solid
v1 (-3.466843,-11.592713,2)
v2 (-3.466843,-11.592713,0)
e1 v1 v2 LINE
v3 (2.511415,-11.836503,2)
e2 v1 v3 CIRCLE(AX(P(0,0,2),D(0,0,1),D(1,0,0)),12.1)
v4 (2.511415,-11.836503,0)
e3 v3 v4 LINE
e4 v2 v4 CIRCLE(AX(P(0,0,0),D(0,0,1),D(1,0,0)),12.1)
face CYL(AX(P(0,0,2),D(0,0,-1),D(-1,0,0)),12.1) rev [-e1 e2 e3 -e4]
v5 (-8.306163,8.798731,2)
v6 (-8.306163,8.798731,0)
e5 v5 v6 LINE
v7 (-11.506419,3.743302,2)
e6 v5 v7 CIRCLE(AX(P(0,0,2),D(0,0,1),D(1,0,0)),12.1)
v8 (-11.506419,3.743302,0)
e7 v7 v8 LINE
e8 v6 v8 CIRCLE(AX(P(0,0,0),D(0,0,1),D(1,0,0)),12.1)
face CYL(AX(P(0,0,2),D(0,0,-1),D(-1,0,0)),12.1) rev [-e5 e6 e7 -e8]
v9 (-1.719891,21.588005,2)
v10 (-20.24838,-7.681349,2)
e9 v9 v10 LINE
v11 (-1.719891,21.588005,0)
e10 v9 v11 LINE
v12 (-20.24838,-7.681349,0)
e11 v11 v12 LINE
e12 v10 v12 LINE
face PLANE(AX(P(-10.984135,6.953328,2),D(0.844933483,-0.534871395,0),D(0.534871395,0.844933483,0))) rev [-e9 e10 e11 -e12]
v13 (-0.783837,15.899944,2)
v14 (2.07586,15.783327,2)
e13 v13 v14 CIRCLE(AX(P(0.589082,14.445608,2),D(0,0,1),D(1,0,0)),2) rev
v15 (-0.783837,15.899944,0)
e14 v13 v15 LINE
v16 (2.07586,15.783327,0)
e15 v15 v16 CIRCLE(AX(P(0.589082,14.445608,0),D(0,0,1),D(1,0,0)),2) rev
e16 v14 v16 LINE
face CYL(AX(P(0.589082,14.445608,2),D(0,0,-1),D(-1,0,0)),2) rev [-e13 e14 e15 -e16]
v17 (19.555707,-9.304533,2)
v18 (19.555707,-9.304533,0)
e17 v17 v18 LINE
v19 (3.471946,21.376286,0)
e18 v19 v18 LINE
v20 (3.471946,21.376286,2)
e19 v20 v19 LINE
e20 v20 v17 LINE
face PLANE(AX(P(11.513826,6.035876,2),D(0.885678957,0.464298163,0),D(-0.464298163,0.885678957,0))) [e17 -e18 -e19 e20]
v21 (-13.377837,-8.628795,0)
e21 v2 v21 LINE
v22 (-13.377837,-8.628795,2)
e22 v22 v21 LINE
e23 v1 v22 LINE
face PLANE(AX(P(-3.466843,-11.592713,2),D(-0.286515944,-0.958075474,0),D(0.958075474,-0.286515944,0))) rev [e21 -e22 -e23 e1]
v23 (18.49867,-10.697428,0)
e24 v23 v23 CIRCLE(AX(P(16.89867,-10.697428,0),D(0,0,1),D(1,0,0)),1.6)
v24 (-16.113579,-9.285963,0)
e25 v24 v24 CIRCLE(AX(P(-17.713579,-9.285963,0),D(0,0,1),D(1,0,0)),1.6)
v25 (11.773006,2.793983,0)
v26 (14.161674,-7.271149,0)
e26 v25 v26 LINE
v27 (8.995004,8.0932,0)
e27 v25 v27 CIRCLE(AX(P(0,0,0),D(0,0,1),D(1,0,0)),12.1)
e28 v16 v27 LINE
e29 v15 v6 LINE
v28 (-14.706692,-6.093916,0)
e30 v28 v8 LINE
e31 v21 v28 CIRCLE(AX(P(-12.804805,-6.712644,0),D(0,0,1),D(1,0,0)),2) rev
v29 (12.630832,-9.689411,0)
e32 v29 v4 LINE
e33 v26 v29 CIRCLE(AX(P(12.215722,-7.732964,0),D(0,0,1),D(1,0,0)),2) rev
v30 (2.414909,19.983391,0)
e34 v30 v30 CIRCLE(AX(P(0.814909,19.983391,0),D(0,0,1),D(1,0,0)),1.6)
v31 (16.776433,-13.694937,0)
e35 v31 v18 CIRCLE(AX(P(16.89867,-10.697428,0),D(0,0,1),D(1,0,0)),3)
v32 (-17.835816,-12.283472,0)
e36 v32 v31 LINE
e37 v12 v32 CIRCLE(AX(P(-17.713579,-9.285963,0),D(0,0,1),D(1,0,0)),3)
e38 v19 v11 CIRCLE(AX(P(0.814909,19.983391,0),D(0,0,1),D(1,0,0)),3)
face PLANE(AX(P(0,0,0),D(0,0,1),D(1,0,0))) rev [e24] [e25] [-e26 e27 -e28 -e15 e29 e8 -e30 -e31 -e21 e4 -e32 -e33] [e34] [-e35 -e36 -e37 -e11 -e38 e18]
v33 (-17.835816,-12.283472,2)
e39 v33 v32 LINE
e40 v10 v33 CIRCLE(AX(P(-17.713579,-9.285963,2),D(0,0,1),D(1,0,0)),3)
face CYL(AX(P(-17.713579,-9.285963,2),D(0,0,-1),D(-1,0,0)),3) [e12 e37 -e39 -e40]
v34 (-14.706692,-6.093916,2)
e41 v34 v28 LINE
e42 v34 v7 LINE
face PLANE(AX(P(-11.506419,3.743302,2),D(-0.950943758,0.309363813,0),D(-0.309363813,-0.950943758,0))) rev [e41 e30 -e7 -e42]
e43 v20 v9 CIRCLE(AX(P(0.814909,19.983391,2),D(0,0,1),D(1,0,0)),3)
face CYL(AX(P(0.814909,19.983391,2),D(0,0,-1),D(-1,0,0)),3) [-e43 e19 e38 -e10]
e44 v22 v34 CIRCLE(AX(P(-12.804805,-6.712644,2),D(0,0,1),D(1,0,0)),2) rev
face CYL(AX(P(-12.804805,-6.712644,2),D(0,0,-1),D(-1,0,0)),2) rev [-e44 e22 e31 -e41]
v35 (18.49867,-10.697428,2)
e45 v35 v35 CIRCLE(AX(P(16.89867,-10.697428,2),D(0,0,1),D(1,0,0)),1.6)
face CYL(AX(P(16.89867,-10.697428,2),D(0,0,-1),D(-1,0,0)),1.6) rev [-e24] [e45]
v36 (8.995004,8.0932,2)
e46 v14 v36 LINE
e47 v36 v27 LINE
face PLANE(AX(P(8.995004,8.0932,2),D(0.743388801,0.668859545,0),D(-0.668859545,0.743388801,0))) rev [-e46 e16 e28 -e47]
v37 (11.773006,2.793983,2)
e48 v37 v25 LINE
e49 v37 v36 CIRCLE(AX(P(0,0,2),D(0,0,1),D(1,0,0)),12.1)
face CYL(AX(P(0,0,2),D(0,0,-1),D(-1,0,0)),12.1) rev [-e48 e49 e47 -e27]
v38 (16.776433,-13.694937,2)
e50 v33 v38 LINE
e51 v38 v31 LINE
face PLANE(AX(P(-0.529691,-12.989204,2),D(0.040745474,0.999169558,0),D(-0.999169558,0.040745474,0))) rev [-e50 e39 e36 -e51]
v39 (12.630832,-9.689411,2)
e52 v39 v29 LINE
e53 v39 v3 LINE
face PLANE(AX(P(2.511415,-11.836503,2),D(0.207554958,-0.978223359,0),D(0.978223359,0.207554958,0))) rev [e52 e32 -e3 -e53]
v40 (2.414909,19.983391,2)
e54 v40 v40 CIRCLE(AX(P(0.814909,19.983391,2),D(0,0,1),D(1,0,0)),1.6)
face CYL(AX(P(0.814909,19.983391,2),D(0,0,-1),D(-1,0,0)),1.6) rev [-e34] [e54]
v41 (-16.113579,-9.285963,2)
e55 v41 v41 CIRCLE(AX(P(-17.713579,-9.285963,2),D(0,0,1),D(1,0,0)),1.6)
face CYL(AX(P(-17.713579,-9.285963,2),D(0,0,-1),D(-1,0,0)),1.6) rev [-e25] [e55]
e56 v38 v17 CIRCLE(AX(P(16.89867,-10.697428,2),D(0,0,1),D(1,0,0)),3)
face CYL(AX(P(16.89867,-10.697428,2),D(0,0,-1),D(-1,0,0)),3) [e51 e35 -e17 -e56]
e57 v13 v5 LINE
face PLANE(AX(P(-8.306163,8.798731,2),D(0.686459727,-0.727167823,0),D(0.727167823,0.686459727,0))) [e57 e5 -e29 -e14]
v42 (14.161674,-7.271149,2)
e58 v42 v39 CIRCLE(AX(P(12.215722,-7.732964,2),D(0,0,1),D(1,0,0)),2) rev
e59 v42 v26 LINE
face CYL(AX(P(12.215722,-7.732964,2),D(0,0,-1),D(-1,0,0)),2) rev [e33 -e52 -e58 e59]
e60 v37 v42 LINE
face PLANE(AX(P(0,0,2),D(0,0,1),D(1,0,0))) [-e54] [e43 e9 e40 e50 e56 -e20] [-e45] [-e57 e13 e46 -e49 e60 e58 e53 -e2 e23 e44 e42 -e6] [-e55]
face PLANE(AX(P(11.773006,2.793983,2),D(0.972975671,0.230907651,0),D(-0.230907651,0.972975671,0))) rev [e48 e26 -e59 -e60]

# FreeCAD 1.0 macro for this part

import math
import FreeCAD as App
import Part
import Sketcher
Q = App.Units.Quantity

doc = App.newDocument("Part")
body = doc.addObject("PartDesign::Body", "Body")

# Sketch on XY plane
sketch1 = doc.addObject("Sketcher::SketchObject", "Sketch")
body.addObject(sketch1)
sketch1.AttachmentSupport = (doc.XY_Plane, [""])
sketch1.MapMode = "FlatFace"
sketch1.addGeometry([
    Part.LineSegment(App.Vector(-1.719891, 21.588005, 0), App.Vector(-20.24838, -7.681349, 0)),  # 0
    Part.ArcOfCircle(Part.Circle(App.Vector(-17.713579, -9.285963, 0), App.Vector(0, 0, 1), 3), math.radians(147.66481), math.radians(267.66481)),  # 1
    Part.LineSegment(App.Vector(-17.835816, -12.283472, 0), App.Vector(16.776433, -13.694937, 0)),  # 2
    Part.ArcOfCircle(Part.Circle(App.Vector(16.89867, -10.697428, 0), App.Vector(0, 0, 1), 3), math.radians(-92.33519), math.radians(27.66481)),  # 3
    Part.LineSegment(App.Vector(19.555707, -9.304533, 0), App.Vector(3.471946, 21.376286, 0)),  # 4
    Part.ArcOfCircle(Part.Circle(App.Vector(0.814909, 19.983391, 0), App.Vector(0, 0, 1), 3), math.radians(27.66481), math.radians(147.66481)),  # 5
    Part.ArcOfCircle(Part.Circle(App.Vector(0, 0, 0), App.Vector(0, 0, 1), 12.1), math.radians(133.350515), math.radians(161.979105)),  # 6
    Part.LineSegment(App.Vector(-8.306163, 8.798731, 0), App.Vector(-0.783837, 15.899944, 0)),  # 7
    Part.ArcOfCircle(Part.Circle(App.Vector(0.589082, 14.445608, 0), App.Vector(0, 0, 1), 2), math.radians(41.979105), math.radians(133.350515)),  # 8
    Part.LineSegment(App.Vector(2.07586, 15.783327, 0), App.Vector(8.995004, 8.0932, 0)),  # 9
    Part.ArcOfCircle(Part.Circle(App.Vector(0, 0, 0), App.Vector(0, 0, 1), 12.1), math.radians(13.350515), math.radians(41.979105)),  # 10
    Part.LineSegment(App.Vector(11.773006, 2.793983, 0), App.Vector(14.161674, -7.271149, 0)),  # 11
    Part.ArcOfCircle(Part.Circle(App.Vector(12.215722, -7.732964, 0), App.Vector(0, 0, 1), 2), math.radians(-78.020895), math.radians(13.350515)),  # 12
    Part.LineSegment(App.Vector(12.630832, -9.689411, 0), App.Vector(2.511415, -11.836503, 0)),  # 13
    Part.ArcOfCircle(Part.Circle(App.Vector(0, 0, 0), App.Vector(0, 0, 1), 12.1), math.radians(-106.649485), math.radians(-78.020895)),  # 14
    Part.LineSegment(App.Vector(-3.466843, -11.592713, 0), App.Vector(-13.377837, -8.628795, 0)),  # 15
    Part.ArcOfCircle(Part.Circle(App.Vector(-12.804805, -6.712644, 0), App.Vector(0, 0, 1), 2), math.radians(161.979105), math.radians(253.350515)),  # 16
    Part.LineSegment(App.Vector(-14.706692, -6.093916, 0), App.Vector(-11.506419, 3.743302, 0)),  # 17
    Part.Circle(App.Vector(0.814909, 19.983391, 0), App.Vector(0, 0, 1), 1.6),  # 18
    Part.Circle(App.Vector(-17.713579, -9.285963, 0), App.Vector(0, 0, 1), 1.6),  # 19
    Part.Circle(App.Vector(16.89867, -10.697428, 0), App.Vector(0, 0, 1), 1.6),  # 20
], False)
sketch1.addConstraint([
    Sketcher.Constraint("Tangent", 0, 2, 1, 1),
    Sketcher.Constraint("Tangent", 1, 2, 2, 1),
    Sketcher.Constraint("Tangent", 2, 2, 3, 1),
    Sketcher.Constraint("Tangent", 3, 2, 4, 1),
    Sketcher.Constraint("Tangent", 4, 2, 5, 1),
    Sketcher.Constraint("Tangent", 5, 2, 0, 1),
    Sketcher.Constraint("Tangent", 6, 1, 7, 1),
    Sketcher.Constraint("Tangent", 7, 2, 8, 2),
    Sketcher.Constraint("Tangent", 8, 1, 9, 1),
    Sketcher.Constraint("Tangent", 9, 2, 10, 2),
    Sketcher.Constraint("Tangent", 10, 1, 11, 1),
    Sketcher.Constraint("Tangent", 11, 2, 12, 2),
    Sketcher.Constraint("Tangent", 12, 1, 13, 1),
    Sketcher.Constraint("Tangent", 13, 2, 14, 2),
    Sketcher.Constraint("Tangent", 14, 1, 15, 1),
    Sketcher.Constraint("Tangent", 15, 2, 16, 2),
    Sketcher.Constraint("Tangent", 16, 1, 17, 1),
    Sketcher.Constraint("Tangent", 17, 2, 6, 2),
    Sketcher.Constraint("Coincident", 6, 3, -1, 1),
    Sketcher.Constraint("Coincident", 10, 3, -1, 1),
    Sketcher.Constraint("Coincident", 14, 3, -1, 1),
    Sketcher.Constraint("Coincident", 18, 3, 5, 3),
    Sketcher.Constraint("Coincident", 19, 3, 1, 3),
    Sketcher.Constraint("Coincident", 20, 3, 3, 3),
    Sketcher.Constraint("Equal", 1, 3),
    Sketcher.Constraint("Equal", 3, 5),
    Sketcher.Constraint("Equal", 6, 10),
    Sketcher.Constraint("Equal", 8, 12),
    Sketcher.Constraint("Equal", 10, 14),
    Sketcher.Constraint("Equal", 12, 16),
    Sketcher.Constraint("Equal", 18, 19),
    Sketcher.Constraint("Equal", 19, 20),
    Sketcher.Constraint("Equal", 0, 2),
    Sketcher.Constraint("Equal", 2, 4),
    Sketcher.Constraint("Equal", 9, 11),
    Sketcher.Constraint("Equal", 13, 15),
    Sketcher.Constraint("Radius", 1, Q("3 mm")),
    Sketcher.Constraint("Radius", 8, Q("2 mm")),
    Sketcher.Constraint("Diameter", 18, Q("3.2 mm")),
    Sketcher.Constraint("Radius", 6, Q("12.1 mm")),
    Sketcher.Constraint("DistanceY", 1, 3, 12, 3, Q("1.552999 mm")),
    Sketcher.Constraint("DistanceX", 9, 2, 10, 1, Q("2.778001 mm")),
    Sketcher.Constraint("DistanceY", -1, 1, 9, 2, Q("8.0932 mm")),
    Sketcher.Constraint("DistanceX", 1, 3, 12, 3, Q("29.929301 mm")),
    Sketcher.Constraint("DistanceX", 0, 2, 1, 3, Q("2.5348 mm")),
    Sketcher.Constraint("DistanceX", 12, 1, 2, 2, Q("4.145601 mm")),
    Sketcher.Constraint("Distance", 7, Q("10.34469 mm")),
    Sketcher.Constraint("DistanceX", 17, 2, -1, 1, Q("11.506419 mm")),
])
pad1 = doc.addObject("PartDesign::Pad", "Pad")
body.addObject(pad1)
pad1.Profile = sketch1
pad1.Length = 2

doc.recompute()
